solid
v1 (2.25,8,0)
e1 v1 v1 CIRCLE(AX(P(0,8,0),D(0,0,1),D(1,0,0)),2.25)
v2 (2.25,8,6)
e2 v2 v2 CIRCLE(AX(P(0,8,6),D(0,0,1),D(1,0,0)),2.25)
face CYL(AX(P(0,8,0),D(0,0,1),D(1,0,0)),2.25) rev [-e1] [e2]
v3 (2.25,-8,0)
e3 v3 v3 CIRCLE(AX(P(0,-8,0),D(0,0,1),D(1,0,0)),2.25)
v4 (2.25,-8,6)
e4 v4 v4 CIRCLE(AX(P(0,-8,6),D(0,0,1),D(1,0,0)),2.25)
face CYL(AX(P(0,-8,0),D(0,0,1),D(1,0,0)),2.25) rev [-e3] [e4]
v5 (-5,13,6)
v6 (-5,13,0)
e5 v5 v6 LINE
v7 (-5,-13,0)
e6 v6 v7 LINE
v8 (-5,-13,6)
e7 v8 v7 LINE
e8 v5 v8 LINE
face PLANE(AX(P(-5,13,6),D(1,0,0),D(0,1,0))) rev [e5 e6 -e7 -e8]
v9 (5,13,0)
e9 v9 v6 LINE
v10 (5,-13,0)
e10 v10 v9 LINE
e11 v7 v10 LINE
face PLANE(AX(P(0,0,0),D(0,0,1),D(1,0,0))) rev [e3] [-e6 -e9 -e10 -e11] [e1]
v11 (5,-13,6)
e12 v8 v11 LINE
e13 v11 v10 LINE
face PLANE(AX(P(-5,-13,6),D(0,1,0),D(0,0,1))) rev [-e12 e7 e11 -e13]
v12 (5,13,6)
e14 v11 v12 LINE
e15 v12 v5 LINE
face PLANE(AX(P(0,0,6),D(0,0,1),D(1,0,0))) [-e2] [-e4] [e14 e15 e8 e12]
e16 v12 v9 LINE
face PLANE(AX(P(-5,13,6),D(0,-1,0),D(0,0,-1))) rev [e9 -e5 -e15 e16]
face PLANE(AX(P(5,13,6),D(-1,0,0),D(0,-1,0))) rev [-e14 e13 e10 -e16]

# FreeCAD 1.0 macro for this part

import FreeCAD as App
import Part
import Sketcher


def add_polygon(sketch, points):
    """Adds a closed chain of lines whose ends are joined by coincident constraints."""
    first, n = sketch.GeometryCount, len(points)
    for a, b in zip(points, points[1:] + points[:1]):
        sketch.addGeometry(Part.LineSegment(App.Vector(*a, 0), App.Vector(*b, 0)), False)
    for i in range(n):
        sketch.addConstraint(Sketcher.Constraint("Coincident", first + i, 2, first + (i + 1) % n, 1))

doc = App.newDocument("Part")
body = doc.addObject("PartDesign::Body", "Body")

sketch1 = body.newObject("Sketcher::SketchObject", "Sketch")
sketch1.AttachmentSupport = (doc.getObject("XY_Plane"), [""])
sketch1.MapMode = "FlatFace"
add_polygon(sketch1, [(-5, 13), (-5, -13), (5, -13), (5, 13)])
sketch1.addConstraint([
    Sketcher.Constraint("Vertical", 0),
    Sketcher.Constraint("Horizontal", 1),
    Sketcher.Constraint("Vertical", 2),
    Sketcher.Constraint("Horizontal", 3),
    Sketcher.Constraint("Symmetric", 0, 2, 2, 2, -1, 1),
    Sketcher.Constraint("DistanceX", 1, 1, 1, 2, 10.0),
    Sketcher.Constraint("DistanceY", 0, 2, 0, 1, 26.0),
])
pad1 = body.newObject("PartDesign::Pad", "Pad")
pad1.Profile = sketch1
pad1.Length = 6

sketch2 = body.newObject("Sketcher::SketchObject", "Sketch001")
sketch2.AttachmentSupport = (doc.getObject("XY_Plane"), [""])
sketch2.MapMode = "FlatFace"
sketch2.AttachmentOffset = App.Placement(App.Vector(0, 0, 6), App.Rotation())
sketch2.addGeometry([
    Part.Circle(App.Vector(0, 8, 0), App.Vector(0, 0, 1), 2.2),
    Part.Circle(App.Vector(0, -8, 0), App.Vector(0, 0, 1), 2.2),
], False)
sketch2.addConstraint([
    Sketcher.Constraint("Equal", 0, 1),
    Sketcher.Constraint("Symmetric", 0, 3, 1, 3, -1, 1),
    Sketcher.Constraint("PointOnObject", 0, 3, -2),
    Sketcher.Constraint("Diameter", 0, 4.5),
    Sketcher.Constraint("DistanceY", -1, 1, 0, 3, 8.0),
])
pocket1 = body.newObject("PartDesign::Pocket", "Pocket")
pocket1.Profile = sketch2
pocket1.Type = "ThroughAll"

doc.recompute()
